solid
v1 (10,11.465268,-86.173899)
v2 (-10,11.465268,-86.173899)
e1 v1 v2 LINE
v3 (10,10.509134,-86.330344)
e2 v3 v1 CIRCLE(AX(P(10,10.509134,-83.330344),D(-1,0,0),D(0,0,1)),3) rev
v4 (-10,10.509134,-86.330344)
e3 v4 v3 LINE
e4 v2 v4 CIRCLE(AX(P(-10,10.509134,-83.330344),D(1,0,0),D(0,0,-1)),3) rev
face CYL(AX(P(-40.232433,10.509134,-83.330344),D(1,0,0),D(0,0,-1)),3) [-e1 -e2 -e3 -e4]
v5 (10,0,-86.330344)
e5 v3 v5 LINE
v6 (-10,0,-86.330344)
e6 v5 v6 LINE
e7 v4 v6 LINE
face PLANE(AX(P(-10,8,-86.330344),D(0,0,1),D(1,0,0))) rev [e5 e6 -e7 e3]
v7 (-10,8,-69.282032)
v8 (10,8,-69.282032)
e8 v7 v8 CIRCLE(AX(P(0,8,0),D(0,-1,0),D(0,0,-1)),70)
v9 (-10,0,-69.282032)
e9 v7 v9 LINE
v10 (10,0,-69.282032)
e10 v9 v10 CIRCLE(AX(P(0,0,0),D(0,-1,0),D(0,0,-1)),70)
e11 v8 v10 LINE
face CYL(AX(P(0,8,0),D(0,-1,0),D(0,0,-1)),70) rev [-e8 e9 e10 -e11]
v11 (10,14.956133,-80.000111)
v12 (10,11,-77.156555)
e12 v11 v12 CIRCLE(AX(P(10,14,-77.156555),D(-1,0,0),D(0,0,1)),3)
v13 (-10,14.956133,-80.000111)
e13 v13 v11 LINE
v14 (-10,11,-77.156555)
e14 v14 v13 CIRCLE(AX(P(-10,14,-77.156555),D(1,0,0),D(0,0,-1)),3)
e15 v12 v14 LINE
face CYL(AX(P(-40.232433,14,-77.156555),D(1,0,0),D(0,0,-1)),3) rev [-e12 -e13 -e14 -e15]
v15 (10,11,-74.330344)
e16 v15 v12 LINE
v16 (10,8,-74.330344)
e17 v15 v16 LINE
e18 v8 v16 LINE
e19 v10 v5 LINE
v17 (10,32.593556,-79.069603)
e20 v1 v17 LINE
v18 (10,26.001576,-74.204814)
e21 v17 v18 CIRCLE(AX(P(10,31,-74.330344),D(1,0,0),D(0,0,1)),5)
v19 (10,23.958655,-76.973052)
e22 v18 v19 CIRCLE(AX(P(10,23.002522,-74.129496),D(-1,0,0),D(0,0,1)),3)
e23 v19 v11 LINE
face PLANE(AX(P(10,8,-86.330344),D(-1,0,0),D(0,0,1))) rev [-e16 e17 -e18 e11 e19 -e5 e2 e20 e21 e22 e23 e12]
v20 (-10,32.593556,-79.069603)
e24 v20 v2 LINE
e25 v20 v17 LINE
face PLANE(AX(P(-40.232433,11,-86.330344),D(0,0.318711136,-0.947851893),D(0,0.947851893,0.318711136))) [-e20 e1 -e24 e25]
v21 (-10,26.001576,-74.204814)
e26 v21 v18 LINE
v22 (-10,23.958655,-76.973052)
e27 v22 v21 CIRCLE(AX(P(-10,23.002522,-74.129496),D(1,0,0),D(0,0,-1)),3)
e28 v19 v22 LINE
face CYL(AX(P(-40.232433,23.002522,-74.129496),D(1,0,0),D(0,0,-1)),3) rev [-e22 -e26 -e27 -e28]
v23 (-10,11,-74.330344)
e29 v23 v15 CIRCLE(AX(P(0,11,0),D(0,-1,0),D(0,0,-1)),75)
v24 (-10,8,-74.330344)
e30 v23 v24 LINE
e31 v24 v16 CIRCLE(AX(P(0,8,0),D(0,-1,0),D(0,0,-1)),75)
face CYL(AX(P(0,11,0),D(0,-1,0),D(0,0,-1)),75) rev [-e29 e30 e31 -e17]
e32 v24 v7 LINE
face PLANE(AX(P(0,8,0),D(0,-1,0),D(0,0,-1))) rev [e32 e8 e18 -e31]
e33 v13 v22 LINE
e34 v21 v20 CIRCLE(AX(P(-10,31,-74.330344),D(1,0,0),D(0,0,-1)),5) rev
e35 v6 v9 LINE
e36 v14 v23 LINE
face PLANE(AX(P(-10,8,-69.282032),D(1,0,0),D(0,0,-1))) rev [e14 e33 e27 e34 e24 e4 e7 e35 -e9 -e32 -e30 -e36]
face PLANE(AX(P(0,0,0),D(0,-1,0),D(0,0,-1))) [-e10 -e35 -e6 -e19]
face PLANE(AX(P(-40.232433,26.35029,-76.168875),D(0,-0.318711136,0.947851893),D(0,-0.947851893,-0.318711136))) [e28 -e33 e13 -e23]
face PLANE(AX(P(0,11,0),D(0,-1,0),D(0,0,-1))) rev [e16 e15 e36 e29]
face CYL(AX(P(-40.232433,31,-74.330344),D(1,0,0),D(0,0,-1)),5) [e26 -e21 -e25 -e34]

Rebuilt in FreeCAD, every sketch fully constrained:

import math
import FreeCAD as App
import Part
import Sketcher
from FreeCAD import Vector


def edges_at(feature, points):
    """Names of the edges that pass closest to the given points."""
    edges = feature.Shape.Edges
    near = lambda p: min(range(len(edges)), key=lambda i: edges[i].distToShape(Part.Vertex(*p))[0])
    return sorted({f"Edge{near(p) + 1}" for p in points})

doc = App.newDocument("Part")
body = doc.addObject("PartDesign::Body", "Body")

# Sketch on XZ plane
sketch1 = body.newObject("Sketcher::SketchObject", "Sketch")
sketch1.AttachmentSupport = (doc.getObject("XZ_Plane"), [""])
sketch1.MapMode = "FlatFace"
sketch1.addGeometry([
    Part.LineSegment(Vector(-10, -86, 0), Vector(-10, -69, 0)),
    Part.ArcOfCircle(Part.Circle(Vector(0, 0, 0), Vector(0, 0, 1), 70), math.radians(-98.21), math.radians(-81.79)),
    Part.LineSegment(Vector(10, -69, 0), Vector(10, -86, 0)),
    Part.LineSegment(Vector(10, -86, 0), Vector(-10, -86, 0)),
], False)
sketch1.addConstraint([
    Sketcher.Constraint("Coincident", 0, 2, 1, 1),
    Sketcher.Constraint("Coincident", 1, 2, 2, 1),
    Sketcher.Constraint("Coincident", 2, 2, 3, 1),
    Sketcher.Constraint("Coincident", 3, 2, 0, 1),
    Sketcher.Constraint("Vertical", 0),
    Sketcher.Constraint("Vertical", 2),
    Sketcher.Constraint("Horizontal", 3),
    Sketcher.Constraint("Coincident", 1, 3, -1, 1),
    Sketcher.Constraint("Horizontal", 0, 2, 1, 2),
    Sketcher.Constraint("Radius", 1, 70.0),
    Sketcher.Constraint("DistanceX", 3, 2, 3, 1, 20.0),
    Sketcher.Constraint("DistanceY", 0, 1, 0, 2, 17.048311),
])
pad1 = body.newObject("PartDesign::Pad", "Pad")
pad1.Profile = sketch1
pad1.Length = 8
pad1.Reversed = True

# Sketch on XZ plane
sketch2 = body.newObject("Sketcher::SketchObject", "Sketch001")
sketch2.AttachmentSupport = (doc.getObject("XZ_Plane"), [""])
sketch2.MapMode = "FlatFace"
sketch2.AttachmentOffset = App.Placement(Vector(0, 0, -8), App.Rotation())
sketch2.addGeometry([
    Part.LineSegment(Vector(-10, -86, 0), Vector(-10, -74, 0)),
    Part.ArcOfCircle(Part.Circle(Vector(0, 0, 0), Vector(0, 0, 1), 75), math.radians(-97.66), math.radians(-82.34)),
    Part.LineSegment(Vector(10, -74, 0), Vector(10, -86, 0)),
    Part.LineSegment(Vector(10, -86, 0), Vector(-10, -86, 0)),
], False)
sketch2.addConstraint([
    Sketcher.Constraint("Coincident", 0, 2, 1, 1),
    Sketcher.Constraint("Coincident", 1, 2, 2, 1),
    Sketcher.Constraint("Coincident", 2, 2, 3, 1),
    Sketcher.Constraint("Coincident", 3, 2, 0, 1),
    Sketcher.Constraint("Vertical", 0),
    Sketcher.Constraint("Vertical", 2),
    Sketcher.Constraint("Horizontal", 3),
    Sketcher.Constraint("Coincident", 1, 3, -1, 1),
    Sketcher.Constraint("Horizontal", 0, 2, 1, 2),
    Sketcher.Constraint("Radius", 1, 75.0),
    Sketcher.Constraint("DistanceX", 3, 2, 3, 1, 20.0),
    Sketcher.Constraint("DistanceY", 0, 1, 0, 2, 12.0),
])
pad2 = body.newObject("PartDesign::Pad", "Pad001")
pad2.Profile = sketch2
pad2.Length = 3
pad2.Reversed = True

# Sketch on YZ plane
sketch3 = body.newObject("Sketcher::SketchObject", "Sketch002")
sketch3.AttachmentSupport = (doc.getObject("YZ_Plane"), [""])
sketch3.MapMode = "FlatFace"
sketch3.AttachmentOffset = App.Placement(Vector(0, 0, 10), App.Rotation())
sketch3.addGeometry([
    Part.LineSegment(Vector(11, -81, 0), Vector(11, -86, 0)),
    Part.LineSegment(Vector(11, -86, 0), Vector(33, -79, 0)),
    Part.ArcOfCircle(Part.Circle(Vector(31, -74, 0), Vector(0, 0, 1), 5), math.radians(-71), math.radians(202)),
    Part.LineSegment(Vector(26, -76, 0), Vector(11, -81, 0)),
], False)
sketch3.addConstraint([
    Sketcher.Constraint("Coincident", 0, 2, 1, 1),
    Sketcher.Constraint("Tangent", 1, 2, 2, 1),
    Sketcher.Constraint("Coincident", 2, 2, 3, 1),
    Sketcher.Constraint("Coincident", 3, 2, 0, 1),
    Sketcher.Constraint("Vertical", 0),
    Sketcher.Constraint("Parallel", 1, 3),
    Sketcher.Constraint("Radius", 2, 5.0),
    Sketcher.Constraint("DistanceY", 0, 2, 0, 1, 5.0),
    Sketcher.Constraint("DistanceX", -1, 1, 2, 3, 31.0),
    Sketcher.Constraint("DistanceX", -1, 1, 0, 2, 11.0),
    Sketcher.Constraint("DistanceY", 0, 2, 2, 3, 12.0),
    Sketcher.Constraint("DistanceY", 2, 3, -1, 1, 74.330344),
])
pad3 = body.newObject("PartDesign::Pad", "Pad002")
pad3.Profile = sketch3
pad3.Length = 20
pad3.Reversed = True
doc.recompute()

fillet = body.newObject("PartDesign::Fillet", "Fillet")
fillet.Base = (pad3, edges_at(pad3, [(0, 11, -86.33), (0, 11, -81.33), (0, 26.35, -76.169)]))
fillet.Radius = 3

doc.recompute()
